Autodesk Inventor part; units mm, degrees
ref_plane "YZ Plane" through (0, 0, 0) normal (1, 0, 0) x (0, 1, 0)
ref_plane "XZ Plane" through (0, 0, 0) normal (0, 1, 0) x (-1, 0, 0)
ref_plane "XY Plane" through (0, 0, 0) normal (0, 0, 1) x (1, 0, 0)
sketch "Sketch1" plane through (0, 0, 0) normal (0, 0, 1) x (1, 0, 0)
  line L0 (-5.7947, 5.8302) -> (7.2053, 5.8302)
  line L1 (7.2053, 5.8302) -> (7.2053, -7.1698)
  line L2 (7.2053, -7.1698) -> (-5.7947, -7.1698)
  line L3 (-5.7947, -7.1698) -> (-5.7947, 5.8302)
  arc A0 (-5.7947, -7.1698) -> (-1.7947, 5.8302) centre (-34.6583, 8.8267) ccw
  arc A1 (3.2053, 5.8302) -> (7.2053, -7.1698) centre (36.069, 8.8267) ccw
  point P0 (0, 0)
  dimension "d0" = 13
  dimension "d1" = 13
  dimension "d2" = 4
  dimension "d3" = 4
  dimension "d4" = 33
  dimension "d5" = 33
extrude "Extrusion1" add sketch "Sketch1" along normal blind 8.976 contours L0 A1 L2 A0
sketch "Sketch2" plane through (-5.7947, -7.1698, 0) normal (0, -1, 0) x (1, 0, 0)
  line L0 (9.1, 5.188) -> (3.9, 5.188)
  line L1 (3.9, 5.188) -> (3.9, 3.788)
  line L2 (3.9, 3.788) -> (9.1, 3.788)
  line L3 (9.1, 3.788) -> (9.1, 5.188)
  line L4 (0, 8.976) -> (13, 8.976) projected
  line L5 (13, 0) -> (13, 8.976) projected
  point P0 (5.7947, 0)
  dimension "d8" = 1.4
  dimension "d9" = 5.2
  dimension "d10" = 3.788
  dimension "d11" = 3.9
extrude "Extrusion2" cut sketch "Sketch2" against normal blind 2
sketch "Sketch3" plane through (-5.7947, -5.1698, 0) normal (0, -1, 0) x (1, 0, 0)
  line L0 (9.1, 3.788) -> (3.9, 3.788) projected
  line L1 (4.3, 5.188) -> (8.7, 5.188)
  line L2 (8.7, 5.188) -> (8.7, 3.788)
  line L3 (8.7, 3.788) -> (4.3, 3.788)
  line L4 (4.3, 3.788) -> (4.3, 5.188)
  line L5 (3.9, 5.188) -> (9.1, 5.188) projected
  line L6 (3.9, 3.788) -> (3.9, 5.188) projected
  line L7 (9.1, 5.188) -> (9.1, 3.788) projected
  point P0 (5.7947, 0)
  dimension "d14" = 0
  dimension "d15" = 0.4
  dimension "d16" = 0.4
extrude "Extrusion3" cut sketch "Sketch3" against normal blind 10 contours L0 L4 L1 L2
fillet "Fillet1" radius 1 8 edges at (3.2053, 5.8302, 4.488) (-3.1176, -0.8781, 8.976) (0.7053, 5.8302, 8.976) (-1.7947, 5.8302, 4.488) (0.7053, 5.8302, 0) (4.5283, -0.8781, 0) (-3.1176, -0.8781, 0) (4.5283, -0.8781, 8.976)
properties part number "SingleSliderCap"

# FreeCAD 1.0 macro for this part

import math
import FreeCAD as App
import Part
import Sketcher

V = App.Vector


def edges_at(feature, points):
    """Names of the edges that pass closest to the given points."""
    edges = feature.Shape.Edges
    near = lambda p: min(range(len(edges)), key=lambda i: edges[i].distToShape(Part.Vertex(*p))[0])
    return sorted({f"Edge{near(p) + 1}" for p in points})

doc = App.newDocument("Part")
body = doc.addObject("PartDesign::Body", "Body")

# Sketch on XY plane
sketch1 = body.newObject("Sketcher::SketchObject", "Sketch")
sketch1.AttachmentSupport = (doc.getObject("XY_Plane"), [""])
sketch1.MapMode = "FlatFace"
sketch1.addGeometry([
    Part.LineSegment(V(3, 6, 0), V(-2, 6, 0)),
    Part.ArcOfCircle(Part.Circle(V(-35, 9, 0), V(0, 0, 1), 33), math.radians(-29), math.radians(-5)),
    Part.LineSegment(V(-6, -7, 0), V(7, -7, 0)),
    Part.ArcOfCircle(Part.Circle(V(36, 9, 0), V(0, 0, 1), 33), math.radians(-175), math.radians(-151)),
], False)
sketch1.addConstraint([
    Sketcher.Constraint("Coincident", 0, 2, 1, 2),
    Sketcher.Constraint("Coincident", 1, 1, 2, 1),
    Sketcher.Constraint("Coincident", 2, 2, 3, 2),
    Sketcher.Constraint("Coincident", 3, 1, 0, 1),
    Sketcher.Constraint("Horizontal", 0),
    Sketcher.Constraint("Horizontal", 2),
    Sketcher.Constraint("Equal", 1, 3),
    Sketcher.Constraint("Horizontal", 1, 3, 3, 3),
    Sketcher.Constraint("Radius", 1, 33.0),
    Sketcher.Constraint("DistanceX", 2, 1, 2, 2, 13.0),
    Sketcher.Constraint("DistanceX", 1, 1, 0, 2, 4.0),
    Sketcher.Constraint("DistanceY", 1, 1, 0, 2, 13.0),
    Sketcher.Constraint("DistanceX", -1, 1, 3, 3, 36.069),
    Sketcher.Constraint("DistanceY", -1, 1, 1, 3, 8.8267),
])
pad1 = body.newObject("PartDesign::Pad", "Pad")
pad1.Profile = sketch1
pad1.Length = 8.976

# Sketch on XZ plane
sketch2 = body.newObject("Sketcher::SketchObject", "Sketch001")
sketch2.AttachmentSupport = (doc.getObject("XZ_Plane"), [""])
sketch2.MapMode = "FlatFace"
sketch2.AttachmentOffset = App.Placement(V(0, 0, 7.1698), App.Rotation())
sketch2.addGeometry([
    Part.LineSegment(V(3.3, 3.8, 0), V(3.3, 5.2, 0)),
    Part.LineSegment(V(3.3, 5.2, 0), V(-1.9, 5.2, 0)),
    Part.LineSegment(V(-1.9, 5.2, 0), V(-1.9, 3.8, 0)),
    Part.LineSegment(V(-1.9, 3.8, 0), V(3.3, 3.8, 0)),
], False)
sketch2.addConstraint([
    Sketcher.Constraint("Coincident", 0, 2, 1, 1),
    Sketcher.Constraint("Coincident", 1, 2, 2, 1),
    Sketcher.Constraint("Coincident", 2, 2, 3, 1),
    Sketcher.Constraint("Coincident", 3, 2, 0, 1),
    Sketcher.Constraint("Vertical", 0),
    Sketcher.Constraint("Horizontal", 1),
    Sketcher.Constraint("Vertical", 2),
    Sketcher.Constraint("Horizontal", 3),
    Sketcher.Constraint("DistanceX", 1, 2, 1, 1, 5.2),
    Sketcher.Constraint("DistanceY", 0, 1, 0, 2, 1.4),
    Sketcher.Constraint("DistanceY", -1, 1, 2, 2, 3.788),
    Sketcher.Constraint("DistanceX", -1, 1, 0, 2, 3.3053),
])
pocket1 = body.newObject("PartDesign::Pocket", "Pocket")
pocket1.Profile = sketch2
pocket1.Length = 2

# Sketch on XZ plane
sketch3 = body.newObject("Sketcher::SketchObject", "Sketch002")
sketch3.AttachmentSupport = (doc.getObject("XZ_Plane"), [""])
sketch3.MapMode = "FlatFace"
sketch3.AttachmentOffset = App.Placement(V(0, 0, 5.1698), App.Rotation())
sketch3.addGeometry([
    Part.LineSegment(V(-1.5, 3.8, 0), V(2.9, 3.8, 0)),
    Part.LineSegment(V(2.9, 3.8, 0), V(2.9, 5.2, 0)),
    Part.LineSegment(V(2.9, 5.2, 0), V(-1.5, 5.2, 0)),
    Part.LineSegment(V(-1.5, 5.2, 0), V(-1.5, 3.8, 0)),
], False)
sketch3.addConstraint([
    Sketcher.Constraint("Coincident", 0, 2, 1, 1),
    Sketcher.Constraint("Coincident", 1, 2, 2, 1),
    Sketcher.Constraint("Coincident", 2, 2, 3, 1),
    Sketcher.Constraint("Coincident", 3, 2, 0, 1),
    Sketcher.Constraint("Horizontal", 0),
    Sketcher.Constraint("Vertical", 1),
    Sketcher.Constraint("Horizontal", 2),
    Sketcher.Constraint("Vertical", 3),
    Sketcher.Constraint("DistanceX", 0, 1, 0, 2, 4.4),
    Sketcher.Constraint("DistanceY", 1, 1, 1, 2, 1.4),
    Sketcher.Constraint("DistanceY", -1, 1, 0, 2, 3.788),
    Sketcher.Constraint("DistanceX", -1, 1, 0, 2, 2.9053),
])
pocket2 = body.newObject("PartDesign::Pocket", "Pocket001")
pocket2.Profile = sketch3
pocket2.Length = 10
doc.recompute()

fillet = body.newObject("PartDesign::Fillet", "Fillet")
fillet.Base = (pocket2, edges_at(pocket2, [
    (3.205, 5.83, 4.488),
    (-3.118, -0.878, 8.976),
    (0.705, 5.83, 8.976),
    (-1.795, 5.83, 4.488),
    (0.705, 5.83, 0),
    (4.528, -0.878, 0),
    (-3.118, -0.878, 0),
    (4.528, -0.878, 8.976),
]))
fillet.Radius = 1

doc.recompute()
